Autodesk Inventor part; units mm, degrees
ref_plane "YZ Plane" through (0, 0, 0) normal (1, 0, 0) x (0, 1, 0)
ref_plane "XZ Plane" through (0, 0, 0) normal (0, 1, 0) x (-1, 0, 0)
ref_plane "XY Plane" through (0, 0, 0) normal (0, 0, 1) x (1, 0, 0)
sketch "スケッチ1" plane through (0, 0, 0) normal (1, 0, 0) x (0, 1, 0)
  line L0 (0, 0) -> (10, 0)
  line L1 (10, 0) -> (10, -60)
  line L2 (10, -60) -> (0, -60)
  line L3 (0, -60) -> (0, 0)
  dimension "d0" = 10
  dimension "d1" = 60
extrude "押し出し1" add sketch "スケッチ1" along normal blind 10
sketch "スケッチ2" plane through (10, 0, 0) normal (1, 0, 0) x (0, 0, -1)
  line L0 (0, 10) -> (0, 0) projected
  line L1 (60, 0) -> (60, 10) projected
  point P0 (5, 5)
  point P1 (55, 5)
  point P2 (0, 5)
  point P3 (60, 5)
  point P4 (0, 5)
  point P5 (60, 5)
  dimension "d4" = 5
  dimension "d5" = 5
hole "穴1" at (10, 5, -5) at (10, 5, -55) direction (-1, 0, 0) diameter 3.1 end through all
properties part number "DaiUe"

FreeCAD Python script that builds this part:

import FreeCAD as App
import Part
import Sketcher

V = App.Vector

doc = App.newDocument("Part")
body = doc.addObject("PartDesign::Body", "Body")

# Sketch on YZ plane
sketch1 = body.newObject("Sketcher::SketchObject", "Sketch")
sketch1.AttachmentSupport = (doc.getObject("YZ_Plane"), [""])
sketch1.MapMode = "FlatFace"
sketch1.addGeometry(Part.LineSegment(V(10, 0, 0), V(0, 0, 0)), False)
sketch1.addGeometry(Part.LineSegment(V(0, 0, 0), V(0, -60, 0)), False)
sketch1.addGeometry(Part.LineSegment(V(0, -60, 0), V(10, -60, 0)), False)
sketch1.addGeometry(Part.LineSegment(V(10, -60, 0), V(10, 0, 0)), False)
sketch1.addConstraint(Sketcher.Constraint("Coincident", 0, 2, 1, 1))
sketch1.addConstraint(Sketcher.Constraint("Coincident", 1, 2, 2, 1))
sketch1.addConstraint(Sketcher.Constraint("Coincident", 2, 2, 3, 1))
sketch1.addConstraint(Sketcher.Constraint("Coincident", 3, 2, 0, 1))
sketch1.addConstraint(Sketcher.Constraint("Horizontal", 0))
sketch1.addConstraint(Sketcher.Constraint("Vertical", 1))
sketch1.addConstraint(Sketcher.Constraint("Horizontal", 2))
sketch1.addConstraint(Sketcher.Constraint("Vertical", 3))
sketch1.addConstraint(Sketcher.Constraint("Coincident", 0, 2, -1, 1))
sketch1.addConstraint(Sketcher.Constraint("DistanceX", 0, 2, 0, 1, 10.0))
sketch1.addConstraint(Sketcher.Constraint("DistanceY", 1, 2, 1, 1, 60.0))
pad1 = body.newObject("PartDesign::Pad", "Pad")
pad1.Profile = sketch1
pad1.Length = 10

# Sketch on YZ plane
sketch2 = body.newObject("Sketcher::SketchObject", "Sketch001")
sketch2.AttachmentSupport = (doc.getObject("YZ_Plane"), [""])
sketch2.MapMode = "FlatFace"
sketch2.AttachmentOffset = App.Placement(V(0, 0, 10), App.Rotation())
sketch2.addGeometry(Part.Circle(V(5, -5, 0), V(0, 0, 1), 1.6), False)
sketch2.addGeometry(Part.Circle(V(5, -55, 0), V(0, 0, 1), 1.6), False)
sketch2.addConstraint(Sketcher.Constraint("Equal", 0, 1))
sketch2.addConstraint(Sketcher.Constraint("Vertical", 0, 3, 1, 3))
sketch2.addConstraint(Sketcher.Constraint("Diameter", 0, 3.1))
sketch2.addConstraint(Sketcher.Constraint("DistanceX", -1, 1, 0, 3, 5.0))
sketch2.addConstraint(Sketcher.Constraint("DistanceY", 0, 3, -1, 1, 5.0))
sketch2.addConstraint(Sketcher.Constraint("DistanceY", 1, 3, -1, 1, 55.0))
doc.recompute()
hole = body.newObject("PartDesign::Hole", "Hole")
hole.Profile = sketch2
hole.ThreadType = "None"
hole.Diameter = 3.1
hole.DepthType = "ThroughAll"

doc.recompute()
